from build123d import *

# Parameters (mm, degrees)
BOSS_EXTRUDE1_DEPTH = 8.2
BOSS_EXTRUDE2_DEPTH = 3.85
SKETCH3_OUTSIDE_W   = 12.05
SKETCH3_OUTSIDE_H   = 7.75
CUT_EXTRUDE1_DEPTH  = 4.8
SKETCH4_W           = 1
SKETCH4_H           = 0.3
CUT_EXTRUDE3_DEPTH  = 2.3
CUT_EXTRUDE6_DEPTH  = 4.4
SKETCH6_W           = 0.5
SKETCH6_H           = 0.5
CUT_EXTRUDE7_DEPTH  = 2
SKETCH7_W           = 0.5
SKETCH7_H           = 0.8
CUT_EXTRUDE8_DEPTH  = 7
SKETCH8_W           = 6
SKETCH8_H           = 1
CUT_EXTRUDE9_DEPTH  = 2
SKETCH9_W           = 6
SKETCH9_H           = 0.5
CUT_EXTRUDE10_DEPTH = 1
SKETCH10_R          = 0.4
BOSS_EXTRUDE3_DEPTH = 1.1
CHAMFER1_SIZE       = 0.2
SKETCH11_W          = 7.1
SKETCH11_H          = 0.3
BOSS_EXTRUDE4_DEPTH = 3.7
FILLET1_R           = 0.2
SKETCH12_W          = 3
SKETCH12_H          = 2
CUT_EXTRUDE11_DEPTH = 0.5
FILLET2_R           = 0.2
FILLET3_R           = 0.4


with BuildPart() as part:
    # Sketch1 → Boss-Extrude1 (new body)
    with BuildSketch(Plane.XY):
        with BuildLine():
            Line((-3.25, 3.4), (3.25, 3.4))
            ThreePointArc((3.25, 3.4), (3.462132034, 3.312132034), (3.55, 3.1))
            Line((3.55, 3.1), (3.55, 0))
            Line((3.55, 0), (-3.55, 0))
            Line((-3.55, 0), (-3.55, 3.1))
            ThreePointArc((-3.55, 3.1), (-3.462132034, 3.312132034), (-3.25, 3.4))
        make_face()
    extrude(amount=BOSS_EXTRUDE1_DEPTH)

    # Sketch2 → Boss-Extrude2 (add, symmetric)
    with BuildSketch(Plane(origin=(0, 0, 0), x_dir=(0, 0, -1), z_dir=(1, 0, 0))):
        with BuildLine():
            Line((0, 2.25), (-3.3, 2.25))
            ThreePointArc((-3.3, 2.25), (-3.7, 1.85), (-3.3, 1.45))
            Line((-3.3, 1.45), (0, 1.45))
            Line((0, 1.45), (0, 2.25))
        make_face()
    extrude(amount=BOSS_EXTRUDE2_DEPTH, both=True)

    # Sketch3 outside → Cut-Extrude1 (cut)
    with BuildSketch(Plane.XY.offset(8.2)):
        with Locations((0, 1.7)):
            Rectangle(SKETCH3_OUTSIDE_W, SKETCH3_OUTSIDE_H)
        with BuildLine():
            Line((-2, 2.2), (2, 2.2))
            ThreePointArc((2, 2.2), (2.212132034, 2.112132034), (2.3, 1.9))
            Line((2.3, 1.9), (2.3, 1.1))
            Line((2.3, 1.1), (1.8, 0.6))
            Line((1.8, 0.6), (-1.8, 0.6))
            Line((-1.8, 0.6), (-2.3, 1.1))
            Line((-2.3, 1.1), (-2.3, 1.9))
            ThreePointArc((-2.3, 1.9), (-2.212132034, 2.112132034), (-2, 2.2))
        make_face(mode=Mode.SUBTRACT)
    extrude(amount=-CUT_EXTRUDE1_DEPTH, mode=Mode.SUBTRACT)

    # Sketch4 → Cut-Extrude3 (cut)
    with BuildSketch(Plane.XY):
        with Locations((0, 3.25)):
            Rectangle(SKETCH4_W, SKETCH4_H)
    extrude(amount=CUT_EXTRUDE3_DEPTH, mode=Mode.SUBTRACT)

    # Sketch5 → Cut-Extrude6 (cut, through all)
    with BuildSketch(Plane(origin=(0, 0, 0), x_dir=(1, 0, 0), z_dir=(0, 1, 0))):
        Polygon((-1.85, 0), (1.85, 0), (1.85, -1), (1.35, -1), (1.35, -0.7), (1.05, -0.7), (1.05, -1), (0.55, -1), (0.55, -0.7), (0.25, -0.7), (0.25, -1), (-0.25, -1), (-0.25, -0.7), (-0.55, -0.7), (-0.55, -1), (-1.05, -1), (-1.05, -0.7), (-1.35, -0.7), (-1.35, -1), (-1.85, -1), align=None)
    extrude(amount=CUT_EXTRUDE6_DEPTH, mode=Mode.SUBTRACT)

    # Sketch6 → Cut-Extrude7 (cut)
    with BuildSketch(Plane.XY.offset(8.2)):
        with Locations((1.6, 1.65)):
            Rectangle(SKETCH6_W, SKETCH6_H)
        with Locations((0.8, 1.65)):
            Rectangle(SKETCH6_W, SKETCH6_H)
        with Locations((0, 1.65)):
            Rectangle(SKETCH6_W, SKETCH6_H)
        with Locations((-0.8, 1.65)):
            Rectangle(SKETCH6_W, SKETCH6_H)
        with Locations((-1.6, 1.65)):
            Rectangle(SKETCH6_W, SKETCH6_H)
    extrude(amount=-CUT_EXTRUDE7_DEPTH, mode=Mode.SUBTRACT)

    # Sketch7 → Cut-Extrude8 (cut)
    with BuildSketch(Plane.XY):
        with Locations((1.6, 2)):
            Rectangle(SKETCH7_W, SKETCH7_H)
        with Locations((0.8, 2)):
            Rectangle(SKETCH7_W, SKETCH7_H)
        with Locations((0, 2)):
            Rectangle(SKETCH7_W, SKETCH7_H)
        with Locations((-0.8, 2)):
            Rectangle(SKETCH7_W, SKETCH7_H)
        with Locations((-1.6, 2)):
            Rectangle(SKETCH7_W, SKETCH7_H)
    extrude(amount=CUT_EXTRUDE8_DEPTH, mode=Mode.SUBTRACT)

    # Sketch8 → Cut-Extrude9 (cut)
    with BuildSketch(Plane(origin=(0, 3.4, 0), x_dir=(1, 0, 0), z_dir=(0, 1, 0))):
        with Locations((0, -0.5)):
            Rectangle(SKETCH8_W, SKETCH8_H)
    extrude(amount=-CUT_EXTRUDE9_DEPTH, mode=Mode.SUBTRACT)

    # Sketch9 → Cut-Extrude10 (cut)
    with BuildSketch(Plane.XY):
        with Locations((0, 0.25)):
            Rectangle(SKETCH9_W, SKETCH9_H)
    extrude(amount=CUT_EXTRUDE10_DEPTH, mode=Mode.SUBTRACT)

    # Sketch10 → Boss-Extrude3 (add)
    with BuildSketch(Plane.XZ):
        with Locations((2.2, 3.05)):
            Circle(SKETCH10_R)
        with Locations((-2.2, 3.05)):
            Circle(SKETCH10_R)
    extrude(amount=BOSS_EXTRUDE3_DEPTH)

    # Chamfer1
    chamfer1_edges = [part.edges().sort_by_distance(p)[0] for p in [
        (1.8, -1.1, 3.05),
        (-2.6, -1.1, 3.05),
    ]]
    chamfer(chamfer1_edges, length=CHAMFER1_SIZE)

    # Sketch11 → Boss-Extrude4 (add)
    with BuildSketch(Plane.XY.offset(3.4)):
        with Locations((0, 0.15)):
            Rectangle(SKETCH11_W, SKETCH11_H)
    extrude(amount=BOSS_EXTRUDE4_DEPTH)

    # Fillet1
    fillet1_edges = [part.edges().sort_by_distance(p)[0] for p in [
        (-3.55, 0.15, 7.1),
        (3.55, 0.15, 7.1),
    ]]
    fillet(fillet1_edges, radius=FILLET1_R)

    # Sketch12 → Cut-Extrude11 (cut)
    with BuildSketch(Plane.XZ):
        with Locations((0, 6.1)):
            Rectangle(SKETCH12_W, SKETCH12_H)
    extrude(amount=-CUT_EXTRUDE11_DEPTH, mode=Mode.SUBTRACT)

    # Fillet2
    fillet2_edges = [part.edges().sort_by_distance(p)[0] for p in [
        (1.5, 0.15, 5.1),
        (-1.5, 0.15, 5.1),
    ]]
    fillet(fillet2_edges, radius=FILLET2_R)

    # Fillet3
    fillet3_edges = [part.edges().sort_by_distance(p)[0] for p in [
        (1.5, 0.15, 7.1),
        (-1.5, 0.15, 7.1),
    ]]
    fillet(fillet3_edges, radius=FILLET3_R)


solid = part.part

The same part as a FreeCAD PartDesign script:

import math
import FreeCAD as App
import Part
import Sketcher

V = App.Vector


def edges_at(feature, points):
    """Names of the edges that pass closest to the given points."""
    edges = feature.Shape.Edges
    near = lambda p: min(range(len(edges)), key=lambda i: edges[i].distToShape(Part.Vertex(*p))[0])
    return sorted({f"Edge{near(p) + 1}" for p in points})


def add_polygon(sketch, points):
    """Adds a closed chain of lines whose ends are joined by coincident constraints."""
    first, n = sketch.GeometryCount, len(points)
    for a, b in zip(points, points[1:] + points[:1]):
        sketch.addGeometry(Part.LineSegment(App.Vector(*a, 0), App.Vector(*b, 0)), False)
    for i in range(n):
        sketch.addConstraint(Sketcher.Constraint("Coincident", first + i, 2, first + (i + 1) % n, 1))

doc = App.newDocument("Part")
body = doc.addObject("PartDesign::Body", "Body")

# Sketch on XY plane
sketch1 = doc.addObject("Sketcher::SketchObject", "Sketch")
body.addObject(sketch1)
sketch1.AttachmentSupport = (doc.XY_Plane, [""])
sketch1.MapMode = "FlatFace"
sketch1.addGeometry(Part.LineSegment(V(3.25, 3.4, 0), V(-3.25, 3.4, 0)), False)
sketch1.addGeometry(Part.ArcOfCircle(Part.Circle(V(-3.25, 3.1, 0), V(0, 0, 1), 0.3), math.radians(90), math.radians(180)), False)
sketch1.addGeometry(Part.LineSegment(V(-3.55, 3.1, 0), V(-3.55, 0, 0)), False)
sketch1.addGeometry(Part.LineSegment(V(-3.55, 0, 0), V(3.55, 0, 0)), False)
sketch1.addGeometry(Part.LineSegment(V(3.55, 0, 0), V(3.55, 3.1, 0)), False)
sketch1.addGeometry(Part.ArcOfCircle(Part.Circle(V(3.25, 3.1, 0), V(0, 0, 1), 0.3), math.radians(0), math.radians(90)), False)
sketch1.addConstraint(Sketcher.Constraint("Tangent", 0, 2, 1, 1))
sketch1.addConstraint(Sketcher.Constraint("Tangent", 1, 2, 2, 1))
sketch1.addConstraint(Sketcher.Constraint("Coincident", 2, 2, 3, 1))
sketch1.addConstraint(Sketcher.Constraint("Coincident", 3, 2, 4, 1))
sketch1.addConstraint(Sketcher.Constraint("Tangent", 4, 2, 5, 1))
sketch1.addConstraint(Sketcher.Constraint("Tangent", 5, 2, 0, 1))
sketch1.addConstraint(Sketcher.Constraint("Horizontal", 0))
sketch1.addConstraint(Sketcher.Constraint("Vertical", 2))
sketch1.addConstraint(Sketcher.Constraint("Horizontal", 3))
sketch1.addConstraint(Sketcher.Constraint("Vertical", 4))
sketch1.addConstraint(Sketcher.Constraint("Equal", 1, 5))
sketch1.addConstraint(Sketcher.Constraint("Symmetric", 2, 2, 3, 2, -1, 1))
sketch1.addConstraint(Sketcher.Constraint("Radius", 1, 0.3))
sketch1.addConstraint(Sketcher.Constraint("DistanceX", 0, 2, 0, 1, 6.5))
sketch1.addConstraint(Sketcher.Constraint("DistanceY", 2, 2, 2, 1, 3.1))
pad1 = doc.addObject("PartDesign::Pad", "Pad")
body.addObject(pad1)
pad1.Profile = sketch1
pad1.Length = 8.2

# Sketch on YZ plane
sketch2 = doc.addObject("Sketcher::SketchObject", "Sketch001")
body.addObject(sketch2)
sketch2.AttachmentSupport = (doc.YZ_Plane, [""])
sketch2.MapMode = "FlatFace"
sketch2.addGeometry(Part.LineSegment(V(2.25, 0, 0), V(2.25, 3.3, 0)), False)
sketch2.addGeometry(Part.ArcOfCircle(Part.Circle(V(1.85, 3.3, 0), V(0, 0, 1), 0.4), math.radians(0), math.radians(180)), False)
sketch2.addGeometry(Part.LineSegment(V(1.45, 3.3, 0), V(1.45, 0, 0)), False)
sketch2.addGeometry(Part.LineSegment(V(1.45, 0, 0), V(2.25, 0, 0)), False)
sketch2.addConstraint(Sketcher.Constraint("Tangent", 0, 2, 1, 1))
sketch2.addConstraint(Sketcher.Constraint("Tangent", 1, 2, 2, 1))
sketch2.addConstraint(Sketcher.Constraint("Coincident", 2, 2, 3, 1))
sketch2.addConstraint(Sketcher.Constraint("Coincident", 3, 2, 0, 1))
sketch2.addConstraint(Sketcher.Constraint("Vertical", 0))
sketch2.addConstraint(Sketcher.Constraint("Vertical", 2))
sketch2.addConstraint(Sketcher.Constraint("Horizontal", 3))
sketch2.addConstraint(Sketcher.Constraint("PointOnObject", 2, 2, -1))
sketch2.addConstraint(Sketcher.Constraint("Radius", 1, 0.4))
sketch2.addConstraint(Sketcher.Constraint("DistanceY", 0, 1, 0, 2, 3.3))
sketch2.addConstraint(Sketcher.Constraint("DistanceX", -1, 1, 1, 3, 1.85))
pad2 = doc.addObject("PartDesign::Pad", "Pad001")
body.addObject(pad2)
pad2.Profile = sketch2
pad2.Length = 7.7
pad2.Midplane = True

# Sketch on XY plane
sketch3 = doc.addObject("Sketcher::SketchObject", "Sketch002")
body.addObject(sketch3)
sketch3.AttachmentSupport = (doc.XY_Plane, [""])
sketch3.MapMode = "FlatFace"
sketch3.AttachmentOffset = App.Placement(V(0, 0, 8.2), App.Rotation())
add_polygon(sketch3, [(-6.025, 5.575), (-6.025, -2.175), (6.025, -2.175), (6.025, 5.575)])  # lines 0-3
sketch3.addGeometry(Part.ArcOfCircle(Part.Circle(V(-2, 1.9, 0), V(0, 0, 1), 0.3), math.radians(90), math.radians(180)), False)  # 4
sketch3.addGeometry(Part.LineSegment(V(-2, 2.2, 0), V(2, 2.2, 0)), False)  # 5
sketch3.addGeometry(Part.ArcOfCircle(Part.Circle(V(2, 1.9, 0), V(0, 0, 1), 0.3), math.radians(0), math.radians(90)), False)  # 6
sketch3.addGeometry(Part.LineSegment(V(2.3, 1.9, 0), V(2.3, 1.1, 0)), False)  # 7
sketch3.addGeometry(Part.LineSegment(V(2.3, 1.1, 0), V(1.8, 0.6, 0)), False)  # 8
sketch3.addGeometry(Part.LineSegment(V(1.8, 0.6, 0), V(-1.8, 0.6, 0)), False)  # 9
sketch3.addGeometry(Part.LineSegment(V(-1.8, 0.6, 0), V(-2.3, 1.1, 0)), False)  # 10
sketch3.addGeometry(Part.LineSegment(V(-2.3, 1.1, 0), V(-2.3, 1.9, 0)), False)  # 11
sketch3.addConstraint(Sketcher.Constraint("Tangent", 4, 1, 5, 1))
sketch3.addConstraint(Sketcher.Constraint("Tangent", 5, 2, 6, 2))
sketch3.addConstraint(Sketcher.Constraint("Tangent", 6, 1, 7, 1))
sketch3.addConstraint(Sketcher.Constraint("Coincident", 7, 2, 8, 1))
sketch3.addConstraint(Sketcher.Constraint("Coincident", 8, 2, 9, 1))
sketch3.addConstraint(Sketcher.Constraint("Coincident", 9, 2, 10, 1))
sketch3.addConstraint(Sketcher.Constraint("Coincident", 10, 2, 11, 1))
sketch3.addConstraint(Sketcher.Constraint("Tangent", 11, 2, 4, 2))
sketch3.addConstraint(Sketcher.Constraint("Vertical", 0))
sketch3.addConstraint(Sketcher.Constraint("Horizontal", 1))
sketch3.addConstraint(Sketcher.Constraint("Vertical", 2))
sketch3.addConstraint(Sketcher.Constraint("Horizontal", 3))
sketch3.addConstraint(Sketcher.Constraint("Horizontal", 5))
sketch3.addConstraint(Sketcher.Constraint("Vertical", 7))
sketch3.addConstraint(Sketcher.Constraint("Horizontal", 9))
sketch3.addConstraint(Sketcher.Constraint("Vertical", 11))
sketch3.addConstraint(Sketcher.Constraint("Equal", 4, 6))
sketch3.addConstraint(Sketcher.Constraint("Symmetric", 7, 2, 10, 2, -2))
sketch3.addConstraint(Sketcher.Constraint("Perpendicular", 8, 10))
sketch3.addConstraint(Sketcher.Constraint("Equal", 8, 10))
sketch3.addConstraint(Sketcher.Constraint("Radius", 4, 0.3))
sketch3.addConstraint(Sketcher.Constraint("DistanceX", 5, 1, 5, 2, 4.0))
sketch3.addConstraint(Sketcher.Constraint("DistanceX", 9, 2, 9, 1, 3.6))
sketch3.addConstraint(Sketcher.Constraint("DistanceY", 7, 2, 7, 1, 0.8))
sketch3.addConstraint(Sketcher.Constraint("DistanceX", 1, 1, 1, 2, 12.05))
sketch3.addConstraint(Sketcher.Constraint("DistanceY", 0, 2, 0, 1, 7.75))
sketch3.addConstraint(Sketcher.Constraint("DistanceY", -1, 1, 4, 3, 1.9))
sketch3.addConstraint(Sketcher.Constraint("DistanceX", 0, 2, -1, 1, 6.025))
sketch3.addConstraint(Sketcher.Constraint("DistanceY", 0, 2, -1, 1, 2.175))
pocket1 = doc.addObject("PartDesign::Pocket", "Pocket")
body.addObject(pocket1)
pocket1.Profile = sketch3
pocket1.Length = 4.8

# Sketch on XY plane
sketch4 = doc.addObject("Sketcher::SketchObject", "Sketch003")
body.addObject(sketch4)
sketch4.AttachmentSupport = (doc.XY_Plane, [""])
sketch4.MapMode = "FlatFace"
add_polygon(sketch4, [(-0.5, 3.4), (-0.5, 3.1), (0.5, 3.1), (0.5, 3.4)])  # lines 0-3
sketch4.addConstraint(Sketcher.Constraint("Vertical", 0))
sketch4.addConstraint(Sketcher.Constraint("Horizontal", 1))
sketch4.addConstraint(Sketcher.Constraint("Vertical", 2))
sketch4.addConstraint(Sketcher.Constraint("Horizontal", 3))
sketch4.addConstraint(Sketcher.Constraint("DistanceX", 1, 1, 1, 2, 1.0))
sketch4.addConstraint(Sketcher.Constraint("DistanceY", 0, 2, 0, 1, 0.3))
sketch4.addConstraint(Sketcher.Constraint("DistanceX", 0, 2, -1, 1, 0.5))
sketch4.addConstraint(Sketcher.Constraint("DistanceY", -1, 1, 0, 2, 3.1))
pocket2 = doc.addObject("PartDesign::Pocket", "Pocket001")
body.addObject(pocket2)
pocket2.Profile = sketch4
pocket2.Length = 2.3
pocket2.Reversed = True

# Sketch on XZ plane
sketch5 = doc.addObject("Sketcher::SketchObject", "Sketch004")
body.addObject(sketch5)
sketch5.AttachmentSupport = (doc.XZ_Plane, [""])
sketch5.MapMode = "FlatFace"
add_polygon(sketch5, [(1.85, 0), (-1.85, 0), (-1.85, 1), (-1.35, 1), (-1.35, 0.7), (-1.05, 0.7), (-1.05, 1), (-0.55, 1), (-0.55, 0.7), (-0.25, 0.7), (-0.25, 1), (0.25, 1), (0.25, 0.7), (0.55, 0.7), (0.55, 1), (1.05, 1), (1.05, 0.7), (1.35, 0.7), (1.35, 1), (1.85, 1)])  # lines 0-19
sketch5.addConstraint(Sketcher.Constraint("Horizontal", 0))
sketch5.addConstraint(Sketcher.Constraint("Vertical", 1))
sketch5.addConstraint(Sketcher.Constraint("Horizontal", 2))
sketch5.addConstraint(Sketcher.Constraint("Vertical", 3))
sketch5.addConstraint(Sketcher.Constraint("Horizontal", 4))
sketch5.addConstraint(Sketcher.Constraint("Vertical", 5))
sketch5.addConstraint(Sketcher.Constraint("Horizontal", 6))
sketch5.addConstraint(Sketcher.Constraint("Vertical", 7))
sketch5.addConstraint(Sketcher.Constraint("Horizontal", 8))
sketch5.addConstraint(Sketcher.Constraint("Vertical", 9))
sketch5.addConstraint(Sketcher.Constraint("Horizontal", 10))
sketch5.addConstraint(Sketcher.Constraint("Vertical", 11))
sketch5.addConstraint(Sketcher.Constraint("Horizontal", 12))
sketch5.addConstraint(Sketcher.Constraint("Vertical", 13))
sketch5.addConstraint(Sketcher.Constraint("Horizontal", 14))
sketch5.addConstraint(Sketcher.Constraint("Vertical", 15))
sketch5.addConstraint(Sketcher.Constraint("Horizontal", 16))
sketch5.addConstraint(Sketcher.Constraint("Vertical", 17))
sketch5.addConstraint(Sketcher.Constraint("Horizontal", 18))
sketch5.addConstraint(Sketcher.Constraint("Vertical", 19))
sketch5.addConstraint(Sketcher.Constraint("Symmetric", 0, 2, 19, 2, -1, 1))
sketch5.addConstraint(Sketcher.Constraint("Symmetric", 8, 2, 11, 2, -2))
sketch5.addConstraint(Sketcher.Constraint("Symmetric", 6, 2, 13, 2, -2))
sketch5.addConstraint(Sketcher.Constraint("Symmetric", 4, 2, 15, 2, -2))
sketch5.addConstraint(Sketcher.Constraint("Symmetric", 2, 2, 17, 2, -2))
sketch5.addConstraint(Sketcher.Constraint("Horizontal", 2, 2, 5, 2))
sketch5.addConstraint(Sketcher.Constraint("Horizontal", 4, 2, 7, 2))
sketch5.addConstraint(Sketcher.Constraint("Horizontal", 6, 2, 9, 2))
sketch5.addConstraint(Sketcher.Constraint("Equal", 2, 6))
sketch5.addConstraint(Sketcher.Constraint("Equal", 4, 8))
sketch5.addConstraint(Sketcher.Constraint("Equal", 6, 10))
sketch5.addConstraint(Sketcher.Constraint("Equal", 16, 3))
sketch5.addConstraint(Sketcher.Constraint("DistanceY", 1, 1, 1, 2, 1.0))
sketch5.addConstraint(Sketcher.Constraint("DistanceX", 0, 2, 0, 1, 3.7))
sketch5.addConstraint(Sketcher.Constraint("DistanceX", 2, 1, 2, 2, 0.5))
pocket3 = doc.addObject("PartDesign::Pocket", "Pocket002")
body.addObject(pocket3)
pocket3.Profile = sketch5
pocket3.Type = "ThroughAll"

# Sketch on XY plane
sketch6 = doc.addObject("Sketcher::SketchObject", "Sketch005")
body.addObject(sketch6)
sketch6.AttachmentSupport = (doc.XY_Plane, [""])
sketch6.MapMode = "FlatFace"
sketch6.AttachmentOffset = App.Placement(V(0, 0, 8.2), App.Rotation())
add_polygon(sketch6, [(1.35, 1.9), (1.35, 1.4), (1.85, 1.4), (1.85, 1.9)])  # lines 0-3
add_polygon(sketch6, [(0.55, 1.9), (0.55, 1.4), (1.05, 1.4), (1.05, 1.9)])  # lines 4-7
add_polygon(sketch6, [(-0.25, 1.9), (-0.25, 1.4), (0.25, 1.4), (0.25, 1.9)])  # lines 8-11
add_polygon(sketch6, [(-1.05, 1.9), (-1.05, 1.4), (-0.55, 1.4), (-0.55, 1.9)])  # lines 12-15
add_polygon(sketch6, [(-1.85, 1.9), (-1.85, 1.4), (-1.35, 1.4), (-1.35, 1.9)])  # lines 16-19
sketch6.addConstraint(Sketcher.Constraint("Vertical", 0))
sketch6.addConstraint(Sketcher.Constraint("Horizontal", 1))
sketch6.addConstraint(Sketcher.Constraint("Vertical", 2))
sketch6.addConstraint(Sketcher.Constraint("Horizontal", 3))
sketch6.addConstraint(Sketcher.Constraint("Vertical", 4))
sketch6.addConstraint(Sketcher.Constraint("Horizontal", 5))
sketch6.addConstraint(Sketcher.Constraint("Vertical", 6))
sketch6.addConstraint(Sketcher.Constraint("Horizontal", 7))
sketch6.addConstraint(Sketcher.Constraint("Vertical", 8))
sketch6.addConstraint(Sketcher.Constraint("Horizontal", 9))
sketch6.addConstraint(Sketcher.Constraint("Vertical", 10))
sketch6.addConstraint(Sketcher.Constraint("Horizontal", 11))
sketch6.addConstraint(Sketcher.Constraint("Vertical", 12))
sketch6.addConstraint(Sketcher.Constraint("Horizontal", 13))
sketch6.addConstraint(Sketcher.Constraint("Vertical", 14))
sketch6.addConstraint(Sketcher.Constraint("Horizontal", 15))
sketch6.addConstraint(Sketcher.Constraint("Vertical", 16))
sketch6.addConstraint(Sketcher.Constraint("Horizontal", 17))
sketch6.addConstraint(Sketcher.Constraint("Vertical", 18))
sketch6.addConstraint(Sketcher.Constraint("Horizontal", 19))
sketch6.addConstraint(Sketcher.Constraint("Symmetric", 5, 2, 12, 2, -2))
sketch6.addConstraint(Sketcher.Constraint("Symmetric", 7, 2, 14, 2, -2))
sketch6.addConstraint(Sketcher.Constraint("Symmetric", 1, 2, 16, 2, -2))
sketch6.addConstraint(Sketcher.Constraint("Symmetric", 3, 2, 18, 2, -2))
sketch6.addConstraint(Sketcher.Constraint("Horizontal", 1, 2, 4, 2))
sketch6.addConstraint(Sketcher.Constraint("Horizontal", 3, 2, 6, 2))
sketch6.addConstraint(Sketcher.Constraint("Horizontal", 5, 2, 8, 2))
sketch6.addConstraint(Sketcher.Constraint("Horizontal", 7, 2, 10, 2))
sketch6.addConstraint(Sketcher.Constraint("Equal", 3, 5))
sketch6.addConstraint(Sketcher.Constraint("Equal", 7, 9))
sketch6.addConstraint(Sketcher.Constraint("Equal", 19, 0))
sketch6.addConstraint(Sketcher.Constraint("DistanceX", 1, 1, 1, 2, 0.5))
sketch6.addConstraint(Sketcher.Constraint("DistanceY", -1, 1, 0, 2, 1.4))
sketch6.addConstraint(Sketcher.Constraint("DistanceX", 4, 2, 0, 2, 0.8))
sketch6.addConstraint(Sketcher.Constraint("DistanceX", 8, 2, 4, 2, 0.8))
sketch6.addConstraint(Sketcher.Constraint("DistanceX", 12, 2, 8, 2, 0.8))
pocket4 = doc.addObject("PartDesign::Pocket", "Pocket003")
body.addObject(pocket4)
pocket4.Profile = sketch6
pocket4.Length = 2

# Sketch on XY plane
sketch7 = doc.addObject("Sketcher::SketchObject", "Sketch006")
body.addObject(sketch7)
sketch7.AttachmentSupport = (doc.XY_Plane, [""])
sketch7.MapMode = "FlatFace"
add_polygon(sketch7, [(1.35, 2.4), (1.35, 1.6), (1.85, 1.6), (1.85, 2.4)])  # lines 0-3
add_polygon(sketch7, [(0.55, 2.4), (0.55, 1.6), (1.05, 1.6), (1.05, 2.4)])  # lines 4-7
add_polygon(sketch7, [(-0.25, 2.4), (-0.25, 1.6), (0.25, 1.6), (0.25, 2.4)])  # lines 8-11
add_polygon(sketch7, [(-1.05, 2.4), (-1.05, 1.6), (-0.55, 1.6), (-0.55, 2.4)])  # lines 12-15
add_polygon(sketch7, [(-1.85, 2.4), (-1.85, 1.6), (-1.35, 1.6), (-1.35, 2.4)])  # lines 16-19
sketch7.addConstraint(Sketcher.Constraint("Vertical", 0))
sketch7.addConstraint(Sketcher.Constraint("Horizontal", 1))
sketch7.addConstraint(Sketcher.Constraint("Vertical", 2))
sketch7.addConstraint(Sketcher.Constraint("Horizontal", 3))
sketch7.addConstraint(Sketcher.Constraint("Vertical", 4))
sketch7.addConstraint(Sketcher.Constraint("Horizontal", 5))
sketch7.addConstraint(Sketcher.Constraint("Vertical", 6))
sketch7.addConstraint(Sketcher.Constraint("Horizontal", 7))
sketch7.addConstraint(Sketcher.Constraint("Vertical", 8))
sketch7.addConstraint(Sketcher.Constraint("Horizontal", 9))
sketch7.addConstraint(Sketcher.Constraint("Vertical", 10))
sketch7.addConstraint(Sketcher.Constraint("Horizontal", 11))
sketch7.addConstraint(Sketcher.Constraint("Vertical", 12))
sketch7.addConstraint(Sketcher.Constraint("Horizontal", 13))
sketch7.addConstraint(Sketcher.Constraint("Vertical", 14))
sketch7.addConstraint(Sketcher.Constraint("Horizontal", 15))
sketch7.addConstraint(Sketcher.Constraint("Vertical", 16))
sketch7.addConstraint(Sketcher.Constraint("Horizontal", 17))
sketch7.addConstraint(Sketcher.Constraint("Vertical", 18))
sketch7.addConstraint(Sketcher.Constraint("Horizontal", 19))
sketch7.addConstraint(Sketcher.Constraint("Symmetric", 5, 2, 12, 2, -2))
sketch7.addConstraint(Sketcher.Constraint("Symmetric", 7, 2, 14, 2, -2))
sketch7.addConstraint(Sketcher.Constraint("Symmetric", 1, 2, 16, 2, -2))
sketch7.addConstraint(Sketcher.Constraint("Symmetric", 3, 2, 18, 2, -2))
sketch7.addConstraint(Sketcher.Constraint("Horizontal", 1, 2, 4, 2))
sketch7.addConstraint(Sketcher.Constraint("Horizontal", 3, 2, 6, 2))
sketch7.addConstraint(Sketcher.Constraint("Horizontal", 5, 2, 8, 2))
sketch7.addConstraint(Sketcher.Constraint("Horizontal", 7, 2, 10, 2))
sketch7.addConstraint(Sketcher.Constraint("Equal", 3, 5))
sketch7.addConstraint(Sketcher.Constraint("Equal", 7, 9))
sketch7.addConstraint(Sketcher.Constraint("DistanceX", 1, 1, 1, 2, 0.5))
sketch7.addConstraint(Sketcher.Constraint("DistanceY", 0, 2, 0, 1, 0.8))
sketch7.addConstraint(Sketcher.Constraint("DistanceY", -1, 1, 0, 2, 1.6))
sketch7.addConstraint(Sketcher.Constraint("DistanceX", 4, 2, 0, 2, 0.8))
sketch7.addConstraint(Sketcher.Constraint("DistanceX", 8, 2, 4, 2, 0.8))
sketch7.addConstraint(Sketcher.Constraint("DistanceX", 12, 2, 8, 2, 0.8))
pocket5 = doc.addObject("PartDesign::Pocket", "Pocket004")
body.addObject(pocket5)
pocket5.Profile = sketch7
pocket5.Length = 7
pocket5.Reversed = True

# Sketch on XZ plane
sketch8 = doc.addObject("Sketcher::SketchObject", "Sketch007")
body.addObject(sketch8)
sketch8.AttachmentSupport = (doc.XZ_Plane, [""])
sketch8.MapMode = "FlatFace"
sketch8.AttachmentOffset = App.Placement(V(0, 0, -3.4), App.Rotation())
add_polygon(sketch8, [(-3, 0), (-3, 1), (3, 1), (3, 0)])  # lines 0-3
sketch8.addConstraint(Sketcher.Constraint("Vertical", 0))
sketch8.addConstraint(Sketcher.Constraint("Horizontal", 1))
sketch8.addConstraint(Sketcher.Constraint("Vertical", 2))
sketch8.addConstraint(Sketcher.Constraint("Horizontal", 3))
sketch8.addConstraint(Sketcher.Constraint("Symmetric", 2, 2, 3, 2, -1, 1))
sketch8.addConstraint(Sketcher.Constraint("DistanceX", 1, 1, 1, 2, 6.0))
sketch8.addConstraint(Sketcher.Constraint("DistanceY", 0, 1, 0, 2, 1.0))
pocket6 = doc.addObject("PartDesign::Pocket", "Pocket005")
body.addObject(pocket6)
pocket6.Profile = sketch8
pocket6.Length = 2
pocket6.Reversed = True

# Sketch on XY plane
sketch9 = doc.addObject("Sketcher::SketchObject", "Sketch008")
body.addObject(sketch9)
sketch9.AttachmentSupport = (doc.XY_Plane, [""])
sketch9.MapMode = "FlatFace"
add_polygon(sketch9, [(-3, 0.5), (-3, 0), (3, 0), (3, 0.5)])  # lines 0-3
sketch9.addConstraint(Sketcher.Constraint("Vertical", 0))
sketch9.addConstraint(Sketcher.Constraint("Horizontal", 1))
sketch9.addConstraint(Sketcher.Constraint("Vertical", 2))
sketch9.addConstraint(Sketcher.Constraint("Horizontal", 3))
sketch9.addConstraint(Sketcher.Constraint("Symmetric", 0, 2, 1, 2, -1, 1))
sketch9.addConstraint(Sketcher.Constraint("DistanceX", 1, 1, 1, 2, 6.0))
sketch9.addConstraint(Sketcher.Constraint("DistanceY", 0, 2, 0, 1, 0.5))
pocket7 = doc.addObject("PartDesign::Pocket", "Pocket006")
body.addObject(pocket7)
pocket7.Profile = sketch9
pocket7.Length = 1
pocket7.Reversed = True

# Sketch on XZ plane
sketch10 = doc.addObject("Sketcher::SketchObject", "Sketch009")
body.addObject(sketch10)
sketch10.AttachmentSupport = (doc.XZ_Plane, [""])
sketch10.MapMode = "FlatFace"
sketch10.addGeometry(Part.Circle(V(2.2, 3.05, 0), V(0, 0, 1), 0.4), False)
sketch10.addGeometry(Part.Circle(V(-2.2, 3.05, 0), V(0, 0, 1), 0.4), False)
sketch10.addConstraint(Sketcher.Constraint("Equal", 0, 1))
sketch10.addConstraint(Sketcher.Constraint("Symmetric", 0, 3, 1, 3, -2))
sketch10.addConstraint(Sketcher.Constraint("Diameter", 0, 0.8))
sketch10.addConstraint(Sketcher.Constraint("DistanceX", -1, 1, 0, 3, 2.2))
sketch10.addConstraint(Sketcher.Constraint("DistanceY", -1, 1, 0, 3, 3.05))
pad3 = doc.addObject("PartDesign::Pad", "Pad002")
body.addObject(pad3)
pad3.Profile = sketch10
pad3.Length = 1.1
doc.recompute()

chamfer = doc.addObject("PartDesign::Chamfer", "Chamfer")
body.addObject(chamfer)
chamfer.Base = (pad3, edges_at(pad3, [(1.8, -1.1, 3.05), (-2.6, -1.1, 3.05)]))
chamfer.Size = 0.2

# Sketch on XY plane
sketch11 = doc.addObject("Sketcher::SketchObject", "Sketch010")
body.addObject(sketch11)
sketch11.AttachmentSupport = (doc.XY_Plane, [""])
sketch11.MapMode = "FlatFace"
sketch11.AttachmentOffset = App.Placement(V(0, 0, 3.4), App.Rotation())
add_polygon(sketch11, [(-3.55, 0.3), (-3.55, 0), (3.55, 0), (3.55, 0.3)])  # lines 0-3
sketch11.addConstraint(Sketcher.Constraint("Vertical", 0))
sketch11.addConstraint(Sketcher.Constraint("Horizontal", 1))
sketch11.addConstraint(Sketcher.Constraint("Vertical", 2))
sketch11.addConstraint(Sketcher.Constraint("Horizontal", 3))
sketch11.addConstraint(Sketcher.Constraint("Symmetric", 0, 2, 1, 2, -1, 1))
sketch11.addConstraint(Sketcher.Constraint("DistanceX", 1, 1, 1, 2, 7.1))
sketch11.addConstraint(Sketcher.Constraint("DistanceY", 0, 2, 0, 1, 0.3))
pad4 = doc.addObject("PartDesign::Pad", "Pad003")
body.addObject(pad4)
pad4.Profile = sketch11
pad4.Length = 3.7
doc.recompute()

fillet = doc.addObject("PartDesign::Fillet", "Fillet")
body.addObject(fillet)
fillet.Base = (pad4, edges_at(pad4, [(-3.55, 0.15, 7.1), (3.55, 0.15, 7.1)]))
fillet.Radius = 0.2

# Sketch on XZ plane
sketch12 = doc.addObject("Sketcher::SketchObject", "Sketch011")
body.addObject(sketch12)
sketch12.AttachmentSupport = (doc.XZ_Plane, [""])
sketch12.MapMode = "FlatFace"
add_polygon(sketch12, [(-1.5, 7.1), (-1.5, 5.1), (1.5, 5.1), (1.5, 7.1)])  # lines 0-3
sketch12.addConstraint(Sketcher.Constraint("Vertical", 0))
sketch12.addConstraint(Sketcher.Constraint("Horizontal", 1))
sketch12.addConstraint(Sketcher.Constraint("Vertical", 2))
sketch12.addConstraint(Sketcher.Constraint("Horizontal", 3))
sketch12.addConstraint(Sketcher.Constraint("DistanceX", 1, 1, 1, 2, 3.0))
sketch12.addConstraint(Sketcher.Constraint("DistanceY", 0, 2, 0, 1, 2.0))
sketch12.addConstraint(Sketcher.Constraint("DistanceX", 0, 2, -1, 1, 1.5))
sketch12.addConstraint(Sketcher.Constraint("DistanceY", -1, 1, 0, 2, 5.1))
pocket8 = doc.addObject("PartDesign::Pocket", "Pocket007")
body.addObject(pocket8)
pocket8.Profile = sketch12
pocket8.Length = 0.5
doc.recompute()

fillet2 = doc.addObject("PartDesign::Fillet", "Fillet001")
body.addObject(fillet2)
fillet2.Base = (pocket8, edges_at(pocket8, [(1.5, 0.15, 5.1), (-1.5, 0.15, 5.1)]))
fillet2.Radius = 0.2
doc.recompute()

fillet3 = doc.addObject("PartDesign::Fillet", "Fillet002")
body.addObject(fillet3)
fillet3.Base = (fillet2, edges_at(fillet2, [(1.5, 0.15, 7.1), (-1.5, 0.15, 7.1)]))
fillet3.Radius = 0.4

doc.recompute()
